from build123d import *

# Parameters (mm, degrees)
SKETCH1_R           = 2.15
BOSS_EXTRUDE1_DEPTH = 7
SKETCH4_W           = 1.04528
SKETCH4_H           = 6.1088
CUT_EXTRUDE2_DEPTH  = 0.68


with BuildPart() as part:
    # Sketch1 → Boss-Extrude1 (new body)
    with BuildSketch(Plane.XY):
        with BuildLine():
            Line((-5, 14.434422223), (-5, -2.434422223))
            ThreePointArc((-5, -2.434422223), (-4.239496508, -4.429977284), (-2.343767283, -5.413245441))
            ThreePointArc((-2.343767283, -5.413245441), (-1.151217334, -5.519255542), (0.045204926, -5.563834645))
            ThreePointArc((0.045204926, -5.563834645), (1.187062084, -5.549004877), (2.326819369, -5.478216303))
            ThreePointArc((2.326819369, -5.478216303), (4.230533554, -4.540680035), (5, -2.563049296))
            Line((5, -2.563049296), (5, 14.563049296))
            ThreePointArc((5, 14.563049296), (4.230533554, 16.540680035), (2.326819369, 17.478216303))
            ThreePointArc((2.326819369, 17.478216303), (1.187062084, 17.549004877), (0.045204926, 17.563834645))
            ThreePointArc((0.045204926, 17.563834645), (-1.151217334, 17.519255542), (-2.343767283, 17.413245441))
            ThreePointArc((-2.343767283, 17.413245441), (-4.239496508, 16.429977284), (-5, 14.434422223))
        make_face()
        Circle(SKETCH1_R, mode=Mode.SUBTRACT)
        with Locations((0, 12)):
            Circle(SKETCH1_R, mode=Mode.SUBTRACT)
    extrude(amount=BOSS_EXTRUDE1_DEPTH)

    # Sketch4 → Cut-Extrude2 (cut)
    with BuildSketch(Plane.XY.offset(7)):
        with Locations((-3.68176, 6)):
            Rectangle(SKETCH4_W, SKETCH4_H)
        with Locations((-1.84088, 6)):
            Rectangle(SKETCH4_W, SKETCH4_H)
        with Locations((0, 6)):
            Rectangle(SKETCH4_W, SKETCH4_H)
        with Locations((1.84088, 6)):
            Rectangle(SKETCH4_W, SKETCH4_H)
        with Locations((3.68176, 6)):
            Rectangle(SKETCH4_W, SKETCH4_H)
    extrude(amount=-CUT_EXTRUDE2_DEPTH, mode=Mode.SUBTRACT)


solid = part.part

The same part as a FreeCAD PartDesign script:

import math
import FreeCAD as App
import Part
import Sketcher

V = App.Vector


def add_polygon(sketch, points):
    """Adds a closed chain of lines whose ends are joined by coincident constraints."""
    first, n = sketch.GeometryCount, len(points)
    for a, b in zip(points, points[1:] + points[:1]):
        sketch.addGeometry(Part.LineSegment(App.Vector(*a, 0), App.Vector(*b, 0)), False)
    for i in range(n):
        sketch.addConstraint(Sketcher.Constraint("Coincident", first + i, 2, first + (i + 1) % n, 1))

doc = App.newDocument("Part")
params = doc.addObject("Spreadsheet::Sheet", "Params")
for row, (alias, value) in enumerate([
    ("sketch1_diameter", "4.3 mm"),
    ("pad1_length", "7 mm"),
    ("pocket1_length", "0.68 mm"),
], start=1):
    params.set(f"A{row}", alias)
    params.set(f"B{row}", "=" + value)
    params.setAlias(f"B{row}", alias)

body = doc.addObject("PartDesign::Body", "Body")

sketch1 = doc.addObject("Sketcher::SketchObject", "Sketch")
body.addObject(sketch1)
sketch1.AttachmentSupport = (doc.XY_Plane, [""])
sketch1.MapMode = "FlatFace"
sketch1.addGeometry([
    Part.LineSegment(V(-5, 14.434422, 0), V(-5, -2.434422, 0)),
    Part.ArcOfCircle(Part.Circle(V(-2.001588, -2.434422, 0), V(0, 0, 1), 2.998412), math.radians(-180), math.radians(-96.55288)),
    Part.ArcOfCircle(Part.Circle(V(0.313806, 17.722114, 0), V(0, 0, 1), 23.287497), math.radians(-96.55288), math.radians(-90.660871)),
    Part.ArcOfCircle(Part.Circle(V(0.313806, 17.722113, 0), V(0, 0, 1), 23.287497), math.radians(-90.660871), math.radians(-85.041059)),
    Part.ArcOfCircle(Part.Circle(V(2.07388, -2.563049, 0), V(0, 0, 1), 2.92612), math.radians(-85.041059), math.radians(0)),
    Part.LineSegment(V(5, -2.563049, 0), V(5, 14.563049, 0)),
    Part.ArcOfCircle(Part.Circle(V(2.07388, 14.563049, 0), V(0, 0, 1), 2.92612), math.radians(0), math.radians(85.041059)),
    Part.ArcOfCircle(Part.Circle(V(0.313806, -5.722113, 0), V(0, 0, 1), 23.287497), math.radians(85.041059), math.radians(90.660871)),
    Part.ArcOfCircle(Part.Circle(V(0.313806, -5.722114, 0), V(0, 0, 1), 23.287497), math.radians(90.660871), math.radians(96.55288)),
    Part.ArcOfCircle(Part.Circle(V(-2.001588, 14.434422, 0), V(0, 0, 1), 2.998412), math.radians(96.55288), math.radians(180)),
    Part.Circle(V(0, 0, 0), V(0, 0, 1), 2.15),
    Part.Circle(V(0, 12, 0), V(0, 0, 1), 2.15),
], False)
sketch1.addConstraint([
    Sketcher.Constraint("Tangent", 0, 2, 1, 1),
    Sketcher.Constraint("Tangent", 1, 2, 2, 1),
    Sketcher.Constraint("Tangent", 2, 2, 3, 1),
    Sketcher.Constraint("Tangent", 3, 2, 4, 1),
    Sketcher.Constraint("Tangent", 4, 2, 5, 1),
    Sketcher.Constraint("Tangent", 5, 2, 6, 1),
    Sketcher.Constraint("Tangent", 6, 2, 7, 1),
    Sketcher.Constraint("Tangent", 7, 2, 8, 1),
    Sketcher.Constraint("Tangent", 8, 2, 9, 1),
    Sketcher.Constraint("Tangent", 9, 2, 0, 1),
    Sketcher.Constraint("Vertical", 0),
    Sketcher.Constraint("Vertical", 5),
    Sketcher.Constraint("Coincident", 10, 3, -1, 1),
    Sketcher.Constraint("Equal", 2, 3),
    Sketcher.Constraint("Equal", 4, 6),
    Sketcher.Constraint("Equal", 3, 7),
    Sketcher.Constraint("Equal", 7, 8),
    Sketcher.Constraint("Equal", 1, 9),
    Sketcher.Constraint("Equal", 10, 11),
    Sketcher.Constraint("PointOnObject", 11, 3, -2),
    Sketcher.Constraint("Vertical", 3, 3, 7, 3),
    Sketcher.Constraint("Vertical", 2, 2, 7, 2),
    Sketcher.Constraint("Diameter", 10, 4.3),
    Sketcher.Constraint("DistanceY", -1, 1, 11, 3, 12.0),
    Sketcher.Constraint("DistanceX", 0, 2, -1, 1, 5.0),
    Sketcher.Constraint("DistanceX", -1, 1, 4, 2, 5.0),
    Sketcher.Constraint("Radius", 1, 2.998412),
    Sketcher.Constraint("Radius", 4, 2.92612),
    Sketcher.Constraint("DistanceY", 5, 1, 5, 2, 17.126099),
    Sketcher.Constraint("Radius", 2, 23.287497),
    Sketcher.Constraint("DistanceX", 2, 2, 7, 3, 0.268601),
    Sketcher.Constraint("DistanceY", 0, 2, 0, 1, 16.868844),
    Sketcher.Constraint("DistanceY", 4, 3, -1, 1, 2.563049),
])
sketch1.setExpression("Constraints[22]", "Params.sketch1_diameter")
pad1 = doc.addObject("PartDesign::Pad", "Pad")
body.addObject(pad1)
pad1.Profile = sketch1
pad1.setExpression("Length", "Params.pad1_length")

sketch2 = doc.addObject("Sketcher::SketchObject", "Sketch001")
body.addObject(sketch2)
sketch2.AttachmentSupport = (doc.XY_Plane, [""])
sketch2.MapMode = "FlatFace"
sketch2.AttachmentOffset = App.Placement(V(0, 0, 7), App.Rotation())
add_polygon(sketch2, [(-4.2044, 9.0544), (-4.2044, 2.9456), (-3.15912, 2.9456), (-3.15912, 9.0544)])
add_polygon(sketch2, [(-2.36352, 9.0544), (-2.36352, 2.9456), (-1.31824, 2.9456), (-1.31824, 9.0544)])
add_polygon(sketch2, [(-0.52264, 9.0544), (-0.52264, 2.9456), (0.52264, 2.9456), (0.52264, 9.0544)])
add_polygon(sketch2, [(1.31824, 9.0544), (1.31824, 2.9456), (2.36352, 2.9456), (2.36352, 9.0544)])
add_polygon(sketch2, [(3.15912, 9.0544), (3.15912, 2.9456), (4.2044, 2.9456), (4.2044, 9.0544)])
sketch2.addConstraint([
    Sketcher.Constraint("Vertical", 0),
    Sketcher.Constraint("Horizontal", 1),
    Sketcher.Constraint("Vertical", 2),
    Sketcher.Constraint("Horizontal", 3),
    Sketcher.Constraint("Vertical", 4),
    Sketcher.Constraint("Horizontal", 5),
    Sketcher.Constraint("Vertical", 6),
    Sketcher.Constraint("Horizontal", 7),
    Sketcher.Constraint("Vertical", 8),
    Sketcher.Constraint("Horizontal", 9),
    Sketcher.Constraint("Vertical", 10),
    Sketcher.Constraint("Horizontal", 11),
    Sketcher.Constraint("Vertical", 12),
    Sketcher.Constraint("Horizontal", 13),
    Sketcher.Constraint("Vertical", 14),
    Sketcher.Constraint("Horizontal", 15),
    Sketcher.Constraint("Vertical", 16),
    Sketcher.Constraint("Horizontal", 17),
    Sketcher.Constraint("Vertical", 18),
    Sketcher.Constraint("Horizontal", 19),
    Sketcher.Constraint("Symmetric", 5, 2, 12, 2, -2),
    Sketcher.Constraint("Symmetric", 7, 2, 14, 2, -2),
    Sketcher.Constraint("Symmetric", 1, 2, 16, 2, -2),
    Sketcher.Constraint("Symmetric", 3, 2, 18, 2, -2),
    Sketcher.Constraint("Horizontal", 1, 2, 4, 2),
    Sketcher.Constraint("Horizontal", 3, 2, 6, 2),
    Sketcher.Constraint("Horizontal", 5, 2, 8, 2),
    Sketcher.Constraint("Horizontal", 7, 2, 10, 2),
    Sketcher.Constraint("Equal", 3, 5),
    Sketcher.Constraint("Equal", 7, 9),
    Sketcher.Constraint("DistanceY", 0, 2, 0, 1, 6.1088),
    Sketcher.Constraint("DistanceX", 1, 1, 1, 2, 1.04528),
    Sketcher.Constraint("DistanceX", 0, 2, -1, 1, 4.2044),
    Sketcher.Constraint("DistanceY", -1, 1, 0, 2, 2.9456),
    Sketcher.Constraint("DistanceX", 1, 2, 4, 2, 0.7956),
    Sketcher.Constraint("DistanceX", 5, 2, 8, 2, 0.7956),
])
pocket1 = doc.addObject("PartDesign::Pocket", "Pocket")
body.addObject(pocket1)
pocket1.Profile = sketch2
pocket1.setExpression("Length", "Params.pocket1_length")

doc.recompute()
